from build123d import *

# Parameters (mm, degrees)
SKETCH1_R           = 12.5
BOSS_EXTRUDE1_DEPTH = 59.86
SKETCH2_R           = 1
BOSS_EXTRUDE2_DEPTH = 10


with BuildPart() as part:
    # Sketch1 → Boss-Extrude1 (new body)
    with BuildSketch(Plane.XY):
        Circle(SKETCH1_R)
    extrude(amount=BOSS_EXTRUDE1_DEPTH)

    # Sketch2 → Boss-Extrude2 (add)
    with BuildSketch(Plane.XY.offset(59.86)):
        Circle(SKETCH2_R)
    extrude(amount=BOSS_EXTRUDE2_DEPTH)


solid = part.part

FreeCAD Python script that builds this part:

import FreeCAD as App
import Part
import Sketcher

doc = App.newDocument("Part")
body = doc.addObject("PartDesign::Body", "Body")

# Sketch on XY plane
sketch1 = body.newObject("Sketcher::SketchObject", "Sketch")
sketch1.AttachmentSupport = (doc.getObject("XY_Plane"), [""])
sketch1.MapMode = "FlatFace"
sketch1.addGeometry(Part.Circle(App.Vector(0, 0, 0), App.Vector(0, 0, 1), 12), False)
sketch1.addConstraint([
    Sketcher.Constraint("Coincident", 0, 3, -1, 1),
    Sketcher.Constraint("Diameter", 0, 25.0),
])
pad1 = body.newObject("PartDesign::Pad", "Pad")
pad1.Profile = sketch1
pad1.Length = 59.86

# Sketch on XY plane
sketch2 = body.newObject("Sketcher::SketchObject", "Sketch001")
sketch2.AttachmentSupport = (doc.getObject("XY_Plane"), [""])
sketch2.MapMode = "FlatFace"
sketch2.AttachmentOffset = App.Placement(App.Vector(0, 0, 59.86), App.Rotation())
sketch2.addGeometry(Part.Circle(App.Vector(0, 0, 0), App.Vector(0, 0, 1), 1), False)
sketch2.addConstraint([
    Sketcher.Constraint("Coincident", 0, 3, -1, 1),
    Sketcher.Constraint("Diameter", 0, 2.0),
])
pad2 = body.newObject("PartDesign::Pad", "Pad001")
pad2.Profile = sketch2
pad2.Length = 10

doc.recompute()
